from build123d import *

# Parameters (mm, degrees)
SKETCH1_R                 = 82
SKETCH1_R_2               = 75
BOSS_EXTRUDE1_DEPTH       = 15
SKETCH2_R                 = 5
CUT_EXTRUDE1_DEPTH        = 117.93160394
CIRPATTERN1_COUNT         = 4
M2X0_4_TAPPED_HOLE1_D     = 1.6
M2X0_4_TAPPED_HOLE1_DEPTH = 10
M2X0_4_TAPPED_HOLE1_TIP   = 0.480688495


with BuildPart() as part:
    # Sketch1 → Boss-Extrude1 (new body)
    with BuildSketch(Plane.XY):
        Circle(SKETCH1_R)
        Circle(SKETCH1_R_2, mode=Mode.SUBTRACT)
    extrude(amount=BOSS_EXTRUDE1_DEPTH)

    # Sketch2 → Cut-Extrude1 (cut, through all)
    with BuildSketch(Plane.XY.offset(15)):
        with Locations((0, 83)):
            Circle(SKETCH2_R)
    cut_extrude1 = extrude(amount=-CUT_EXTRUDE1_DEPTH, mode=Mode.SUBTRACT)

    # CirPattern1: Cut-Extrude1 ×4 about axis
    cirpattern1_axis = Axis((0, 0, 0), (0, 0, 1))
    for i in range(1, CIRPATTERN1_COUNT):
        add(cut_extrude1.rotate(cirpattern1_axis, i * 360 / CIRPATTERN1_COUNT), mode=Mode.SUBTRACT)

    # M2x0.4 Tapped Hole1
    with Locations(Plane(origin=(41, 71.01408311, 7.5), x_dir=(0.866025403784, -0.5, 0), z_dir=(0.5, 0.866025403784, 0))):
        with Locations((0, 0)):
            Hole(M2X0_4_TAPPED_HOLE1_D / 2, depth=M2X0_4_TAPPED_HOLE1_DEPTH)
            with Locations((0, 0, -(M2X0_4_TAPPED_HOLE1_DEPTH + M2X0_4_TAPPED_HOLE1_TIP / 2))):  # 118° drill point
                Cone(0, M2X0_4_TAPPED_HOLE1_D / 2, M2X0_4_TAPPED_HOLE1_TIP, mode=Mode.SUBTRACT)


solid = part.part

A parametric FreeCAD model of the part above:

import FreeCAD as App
import Part
import Sketcher
Q = App.Units.Quantity

doc = App.newDocument("Part")
body = doc.addObject("PartDesign::Body", "Body")

sketch1 = body.newObject("Sketcher::SketchObject", "Sketch")
sketch1.AttachmentSupport = (doc.getObject("XY_Plane"), [""])
sketch1.MapMode = "FlatFace"
sketch1.addGeometry(Part.Circle(App.Vector(0, 0, 0), App.Vector(0, 0, 1), 82), False)
sketch1.addGeometry(Part.Circle(App.Vector(0, 0, 0), App.Vector(0, 0, 1), 75), False)
sketch1.addConstraint(Sketcher.Constraint("Coincident", 0, 3, -1, 1))
sketch1.addConstraint(Sketcher.Constraint("Coincident", 1, 3, -1, 1))
sketch1.addConstraint(Sketcher.Constraint("Diameter", 0, Q("164 mm")))
sketch1.addConstraint(Sketcher.Constraint("Diameter", 1, Q("150 mm")))
pad1 = body.newObject("PartDesign::Pad", "Pad")
pad1.Profile = sketch1
pad1.Length = 15

sketch2 = body.newObject("Sketcher::SketchObject", "Sketch001")
sketch2.AttachmentSupport = (doc.getObject("XY_Plane"), [""])
sketch2.MapMode = "FlatFace"
sketch2.AttachmentOffset = App.Placement(App.Vector(0, 0, 15), App.Rotation())
sketch2.addGeometry(Part.Circle(App.Vector(0, 83, 0), App.Vector(0, 0, 1), 5), False)
sketch2.addConstraint(Sketcher.Constraint("PointOnObject", 0, 3, -2))
sketch2.addConstraint(Sketcher.Constraint("Diameter", 0, Q("10 mm")))
sketch2.addConstraint(Sketcher.Constraint("DistanceY", -1, 1, 0, 3, Q("83 mm")))
pocket1 = body.newObject("PartDesign::Pocket", "Pocket")
pocket1.Profile = sketch2
pocket1.Type = "ThroughAll"
doc.recompute()

polarpattern = body.newObject("PartDesign::PolarPattern", "PolarPattern")
polarpattern.Originals = [pocket1]
polarpattern.Axis = (doc.getObject("Z_Axis"), [""])
polarpattern.Angle = 360
polarpattern.Occurrences = 4
body.Tip = polarpattern

sketch3 = body.newObject("Sketcher::SketchObject", "Sketch002")
sketch3.Placement = App.Placement(App.Vector(41, 71.014083, 0), App.Rotation(App.Vector(0.866025404, -0.5, 0), App.Vector(0, 0, -1), App.Vector(0.5, 0.866025404, 0), "ZXY"))
sketch3.addGeometry(Part.Circle(App.Vector(0, -7.5, 0), App.Vector(0, 0, 1), 0.8), False)
sketch3.addConstraint(Sketcher.Constraint("PointOnObject", 0, 3, -2))
sketch3.addConstraint(Sketcher.Constraint("Diameter", 0, Q("1.6 mm")))
sketch3.addConstraint(Sketcher.Constraint("DistanceY", 0, 3, -1, 1, Q("7.5 mm")))
doc.recompute()
hole = body.newObject("PartDesign::Hole", "Hole")
hole.Profile = sketch3
hole.ThreadType = "None"
hole.Diameter = 1.6
hole.DepthType = "Dimension"
hole.Depth = 10
hole.DrillPoint = "Angled"
hole.DrillPointAngle = 118

doc.recompute()
